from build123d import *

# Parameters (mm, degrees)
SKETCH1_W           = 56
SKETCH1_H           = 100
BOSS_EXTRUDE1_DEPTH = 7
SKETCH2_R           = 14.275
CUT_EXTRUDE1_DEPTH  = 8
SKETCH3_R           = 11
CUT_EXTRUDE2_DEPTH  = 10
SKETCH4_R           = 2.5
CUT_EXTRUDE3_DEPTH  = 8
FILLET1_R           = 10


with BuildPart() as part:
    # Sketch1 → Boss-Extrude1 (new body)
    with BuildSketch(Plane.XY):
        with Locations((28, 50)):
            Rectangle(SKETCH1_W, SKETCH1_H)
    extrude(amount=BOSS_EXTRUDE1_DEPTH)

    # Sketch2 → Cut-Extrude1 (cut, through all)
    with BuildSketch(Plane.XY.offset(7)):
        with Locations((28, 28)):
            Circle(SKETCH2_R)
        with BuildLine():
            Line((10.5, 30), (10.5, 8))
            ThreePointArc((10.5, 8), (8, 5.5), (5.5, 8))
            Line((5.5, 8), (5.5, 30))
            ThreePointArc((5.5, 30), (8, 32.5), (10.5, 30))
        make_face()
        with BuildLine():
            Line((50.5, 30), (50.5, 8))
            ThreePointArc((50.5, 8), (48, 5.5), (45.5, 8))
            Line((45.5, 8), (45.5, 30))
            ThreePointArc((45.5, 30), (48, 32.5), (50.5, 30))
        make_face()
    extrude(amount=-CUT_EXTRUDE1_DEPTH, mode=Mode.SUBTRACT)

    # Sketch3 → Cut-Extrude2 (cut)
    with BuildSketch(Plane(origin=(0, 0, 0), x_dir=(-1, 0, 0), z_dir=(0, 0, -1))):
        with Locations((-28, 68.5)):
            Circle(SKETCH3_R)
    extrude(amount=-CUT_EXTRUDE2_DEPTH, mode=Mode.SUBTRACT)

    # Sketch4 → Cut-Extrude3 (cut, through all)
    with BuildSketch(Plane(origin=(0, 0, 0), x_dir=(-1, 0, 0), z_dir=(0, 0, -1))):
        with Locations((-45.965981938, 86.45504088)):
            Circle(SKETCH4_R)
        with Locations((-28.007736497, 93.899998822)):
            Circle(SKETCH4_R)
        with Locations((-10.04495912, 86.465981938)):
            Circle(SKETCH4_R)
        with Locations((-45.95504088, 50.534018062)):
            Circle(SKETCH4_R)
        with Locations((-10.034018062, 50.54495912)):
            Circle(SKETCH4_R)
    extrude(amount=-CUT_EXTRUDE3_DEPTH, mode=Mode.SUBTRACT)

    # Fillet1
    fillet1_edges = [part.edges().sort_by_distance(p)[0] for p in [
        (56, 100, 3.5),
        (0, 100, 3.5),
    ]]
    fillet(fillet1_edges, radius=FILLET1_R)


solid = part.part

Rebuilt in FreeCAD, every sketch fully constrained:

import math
import FreeCAD as App
import Part
import Sketcher
from FreeCAD import Vector
Q = App.Units.Quantity


def edges_at(feature, points):
    """Names of the edges that pass closest to the given points."""
    edges = feature.Shape.Edges
    near = lambda p: min(range(len(edges)), key=lambda i: edges[i].distToShape(Part.Vertex(*p))[0])
    return sorted({f"Edge{near(p) + 1}" for p in points})


def add_polygon(sketch, points):
    """Adds a closed chain of lines whose ends are joined by coincident constraints."""
    first, n = sketch.GeometryCount, len(points)
    for a, b in zip(points, points[1:] + points[:1]):
        sketch.addGeometry(Part.LineSegment(App.Vector(*a, 0), App.Vector(*b, 0)), False)
    for i in range(n):
        sketch.addConstraint(Sketcher.Constraint("Coincident", first + i, 2, first + (i + 1) % n, 1))

doc = App.newDocument("Part")
body = doc.addObject("PartDesign::Body", "Body")

# Sketch on XY plane
sketch1 = doc.addObject("Sketcher::SketchObject", "Sketch")
body.addObject(sketch1)
sketch1.AttachmentSupport = (doc.XY_Plane, [""])
sketch1.MapMode = "FlatFace"
add_polygon(sketch1, [(0, 100), (0, 0), (56, 0), (56, 100)])  # lines 0-3
sketch1.addConstraint(Sketcher.Constraint("Vertical", 0))
sketch1.addConstraint(Sketcher.Constraint("Horizontal", 1))
sketch1.addConstraint(Sketcher.Constraint("Vertical", 2))
sketch1.addConstraint(Sketcher.Constraint("Horizontal", 3))
sketch1.addConstraint(Sketcher.Constraint("Coincident", 0, 2, -1, 1))
sketch1.addConstraint(Sketcher.Constraint("DistanceX", 1, 1, 1, 2, Q("56 mm")))
sketch1.addConstraint(Sketcher.Constraint("DistanceY", 0, 2, 0, 1, Q("100 mm")))
pad1 = doc.addObject("PartDesign::Pad", "Pad")
body.addObject(pad1)
pad1.Profile = sketch1
pad1.Length = 7

# Sketch on XY plane
sketch2 = doc.addObject("Sketcher::SketchObject", "Sketch001")
body.addObject(sketch2)
sketch2.AttachmentSupport = (doc.XY_Plane, [""])
sketch2.MapMode = "FlatFace"
sketch2.AttachmentOffset = App.Placement(Vector(0, 0, 7), App.Rotation())
sketch2.addGeometry(Part.Circle(Vector(28, 28, 0), Vector(0, 0, 1), 14.275), False)
sketch2.addGeometry(Part.LineSegment(Vector(10.5, 8, 0), Vector(10.5, 30, 0)), False)
sketch2.addGeometry(Part.ArcOfCircle(Part.Circle(Vector(8, 30, 0), Vector(0, 0, 1), 2.5), math.radians(0), math.radians(180)), False)
sketch2.addGeometry(Part.LineSegment(Vector(5.5, 30, 0), Vector(5.5, 8, 0)), False)
sketch2.addGeometry(Part.ArcOfCircle(Part.Circle(Vector(8, 8, 0), Vector(0, 0, 1), 2.5), math.radians(180), math.radians(360)), False)
sketch2.addGeometry(Part.LineSegment(Vector(50.5, 8, 0), Vector(50.5, 30, 0)), False)
sketch2.addGeometry(Part.ArcOfCircle(Part.Circle(Vector(48, 30, 0), Vector(0, 0, 1), 2.5), math.radians(0), math.radians(180)), False)
sketch2.addGeometry(Part.LineSegment(Vector(45.5, 30, 0), Vector(45.5, 8, 0)), False)
sketch2.addGeometry(Part.ArcOfCircle(Part.Circle(Vector(48, 8, 0), Vector(0, 0, 1), 2.5), math.radians(180), math.radians(360)), False)
sketch2.addConstraint(Sketcher.Constraint("Tangent", 1, 2, 2, 1))
sketch2.addConstraint(Sketcher.Constraint("Tangent", 2, 2, 3, 1))
sketch2.addConstraint(Sketcher.Constraint("Tangent", 3, 2, 4, 1))
sketch2.addConstraint(Sketcher.Constraint("Tangent", 4, 2, 1, 1))
sketch2.addConstraint(Sketcher.Constraint("Tangent", 5, 2, 6, 1))
sketch2.addConstraint(Sketcher.Constraint("Tangent", 6, 2, 7, 1))
sketch2.addConstraint(Sketcher.Constraint("Tangent", 7, 2, 8, 1))
sketch2.addConstraint(Sketcher.Constraint("Tangent", 8, 2, 5, 1))
sketch2.addConstraint(Sketcher.Constraint("Vertical", 1))
sketch2.addConstraint(Sketcher.Constraint("Vertical", 3))
sketch2.addConstraint(Sketcher.Constraint("Vertical", 5))
sketch2.addConstraint(Sketcher.Constraint("Vertical", 7))
sketch2.addConstraint(Sketcher.Constraint("Equal", 4, 6))
sketch2.addConstraint(Sketcher.Constraint("Horizontal", 2, 3, 6, 3))
sketch2.addConstraint(Sketcher.Constraint("Horizontal", 4, 3, 8, 3))
sketch2.addConstraint(Sketcher.Constraint("Radius", 2, Q("2.5 mm")))
sketch2.addConstraint(Sketcher.Constraint("Diameter", 0, Q("28.55 mm")))
sketch2.addConstraint(Sketcher.Constraint("DistanceY", 1, 1, 1, 2, Q("22 mm")))
sketch2.addConstraint(Sketcher.Constraint("DistanceX", -1, 1, 0, 3, Q("28 mm")))
sketch2.addConstraint(Sketcher.Constraint("DistanceY", -1, 1, 0, 3, Q("28 mm")))
sketch2.addConstraint(Sketcher.Constraint("DistanceX", -1, 1, 2, 3, Q("8 mm")))
sketch2.addConstraint(Sketcher.Constraint("DistanceY", -1, 1, 2, 3, Q("30 mm")))
sketch2.addConstraint(Sketcher.Constraint("DistanceX", -1, 1, 6, 3, Q("48 mm")))
pocket1 = doc.addObject("PartDesign::Pocket", "Pocket")
body.addObject(pocket1)
pocket1.Profile = sketch2
pocket1.Type = "ThroughAll"

# Sketch on XY plane
sketch3 = doc.addObject("Sketcher::SketchObject", "Sketch002")
body.addObject(sketch3)
sketch3.AttachmentSupport = (doc.XY_Plane, [""])
sketch3.MapMode = "FlatFace"
sketch3.addGeometry(Part.Circle(Vector(28, 68.5, 0), Vector(0, 0, 1), 11), False)
sketch3.addConstraint(Sketcher.Constraint("Diameter", 0, Q("22 mm")))
sketch3.addConstraint(Sketcher.Constraint("DistanceX", -1, 1, 0, 3, Q("28 mm")))
sketch3.addConstraint(Sketcher.Constraint("DistanceY", -1, 1, 0, 3, Q("68.5 mm")))
pocket2 = doc.addObject("PartDesign::Pocket", "Pocket001")
body.addObject(pocket2)
pocket2.Profile = sketch3
pocket2.Length = 10
pocket2.Reversed = True

# Sketch on XY plane
sketch4 = doc.addObject("Sketcher::SketchObject", "Sketch003")
body.addObject(sketch4)
sketch4.AttachmentSupport = (doc.XY_Plane, [""])
sketch4.MapMode = "FlatFace"
sketch4.addGeometry(Part.Circle(Vector(45.965982, 86.455041, 0), Vector(0, 0, 1), 2.5), False)
sketch4.addGeometry(Part.Circle(Vector(28.007736, 93.899999, 0), Vector(0, 0, 1), 2.5), False)
sketch4.addGeometry(Part.Circle(Vector(10.044959, 86.465982, 0), Vector(0, 0, 1), 2.5), False)
sketch4.addGeometry(Part.Circle(Vector(45.955041, 50.534018, 0), Vector(0, 0, 1), 2.5), False)
sketch4.addGeometry(Part.Circle(Vector(10.034018, 50.544959, 0), Vector(0, 0, 1), 2.5), False)
sketch4.addConstraint(Sketcher.Constraint("Equal", 0, 1))
sketch4.addConstraint(Sketcher.Constraint("Equal", 1, 2))
sketch4.addConstraint(Sketcher.Constraint("Equal", 2, 3))
sketch4.addConstraint(Sketcher.Constraint("Equal", 3, 4))
sketch4.addConstraint(Sketcher.Constraint("Diameter", 0, Q("5 mm")))
sketch4.addConstraint(Sketcher.Constraint("DistanceY", -1, 1, 1, 3, Q("93.899999 mm")))
sketch4.addConstraint(Sketcher.Constraint("DistanceX", -1, 1, 0, 3, Q("45.965982 mm")))
sketch4.addConstraint(Sketcher.Constraint("DistanceY", -1, 1, 0, 3, Q("86.455041 mm")))
sketch4.addConstraint(Sketcher.Constraint("DistanceX", -1, 1, 2, 3, Q("10.044959 mm")))
sketch4.addConstraint(Sketcher.Constraint("DistanceY", -1, 1, 2, 3, Q("86.465982 mm")))
sketch4.addConstraint(Sketcher.Constraint("DistanceX", -1, 1, 3, 3, Q("45.955041 mm")))
sketch4.addConstraint(Sketcher.Constraint("DistanceY", -1, 1, 3, 3, Q("50.534018 mm")))
sketch4.addConstraint(Sketcher.Constraint("DistanceX", -1, 1, 4, 3, Q("10.034018 mm")))
sketch4.addConstraint(Sketcher.Constraint("DistanceY", -1, 1, 4, 3, Q("50.544959 mm")))
sketch4.addConstraint(Sketcher.Constraint("DistanceX", 4, 3, 1, 3, Q("17.973718 mm")))
pocket3 = doc.addObject("PartDesign::Pocket", "Pocket002")
body.addObject(pocket3)
pocket3.Profile = sketch4
pocket3.Type = "ThroughAll"
pocket3.Reversed = True
doc.recompute()

fillet = doc.addObject("PartDesign::Fillet", "Fillet")
body.addObject(fillet)
fillet.Base = (pocket3, edges_at(pocket3, [(56, 100, 3.5), (0, 100, 3.5)]))
fillet.Radius = 10

doc.recompute()
